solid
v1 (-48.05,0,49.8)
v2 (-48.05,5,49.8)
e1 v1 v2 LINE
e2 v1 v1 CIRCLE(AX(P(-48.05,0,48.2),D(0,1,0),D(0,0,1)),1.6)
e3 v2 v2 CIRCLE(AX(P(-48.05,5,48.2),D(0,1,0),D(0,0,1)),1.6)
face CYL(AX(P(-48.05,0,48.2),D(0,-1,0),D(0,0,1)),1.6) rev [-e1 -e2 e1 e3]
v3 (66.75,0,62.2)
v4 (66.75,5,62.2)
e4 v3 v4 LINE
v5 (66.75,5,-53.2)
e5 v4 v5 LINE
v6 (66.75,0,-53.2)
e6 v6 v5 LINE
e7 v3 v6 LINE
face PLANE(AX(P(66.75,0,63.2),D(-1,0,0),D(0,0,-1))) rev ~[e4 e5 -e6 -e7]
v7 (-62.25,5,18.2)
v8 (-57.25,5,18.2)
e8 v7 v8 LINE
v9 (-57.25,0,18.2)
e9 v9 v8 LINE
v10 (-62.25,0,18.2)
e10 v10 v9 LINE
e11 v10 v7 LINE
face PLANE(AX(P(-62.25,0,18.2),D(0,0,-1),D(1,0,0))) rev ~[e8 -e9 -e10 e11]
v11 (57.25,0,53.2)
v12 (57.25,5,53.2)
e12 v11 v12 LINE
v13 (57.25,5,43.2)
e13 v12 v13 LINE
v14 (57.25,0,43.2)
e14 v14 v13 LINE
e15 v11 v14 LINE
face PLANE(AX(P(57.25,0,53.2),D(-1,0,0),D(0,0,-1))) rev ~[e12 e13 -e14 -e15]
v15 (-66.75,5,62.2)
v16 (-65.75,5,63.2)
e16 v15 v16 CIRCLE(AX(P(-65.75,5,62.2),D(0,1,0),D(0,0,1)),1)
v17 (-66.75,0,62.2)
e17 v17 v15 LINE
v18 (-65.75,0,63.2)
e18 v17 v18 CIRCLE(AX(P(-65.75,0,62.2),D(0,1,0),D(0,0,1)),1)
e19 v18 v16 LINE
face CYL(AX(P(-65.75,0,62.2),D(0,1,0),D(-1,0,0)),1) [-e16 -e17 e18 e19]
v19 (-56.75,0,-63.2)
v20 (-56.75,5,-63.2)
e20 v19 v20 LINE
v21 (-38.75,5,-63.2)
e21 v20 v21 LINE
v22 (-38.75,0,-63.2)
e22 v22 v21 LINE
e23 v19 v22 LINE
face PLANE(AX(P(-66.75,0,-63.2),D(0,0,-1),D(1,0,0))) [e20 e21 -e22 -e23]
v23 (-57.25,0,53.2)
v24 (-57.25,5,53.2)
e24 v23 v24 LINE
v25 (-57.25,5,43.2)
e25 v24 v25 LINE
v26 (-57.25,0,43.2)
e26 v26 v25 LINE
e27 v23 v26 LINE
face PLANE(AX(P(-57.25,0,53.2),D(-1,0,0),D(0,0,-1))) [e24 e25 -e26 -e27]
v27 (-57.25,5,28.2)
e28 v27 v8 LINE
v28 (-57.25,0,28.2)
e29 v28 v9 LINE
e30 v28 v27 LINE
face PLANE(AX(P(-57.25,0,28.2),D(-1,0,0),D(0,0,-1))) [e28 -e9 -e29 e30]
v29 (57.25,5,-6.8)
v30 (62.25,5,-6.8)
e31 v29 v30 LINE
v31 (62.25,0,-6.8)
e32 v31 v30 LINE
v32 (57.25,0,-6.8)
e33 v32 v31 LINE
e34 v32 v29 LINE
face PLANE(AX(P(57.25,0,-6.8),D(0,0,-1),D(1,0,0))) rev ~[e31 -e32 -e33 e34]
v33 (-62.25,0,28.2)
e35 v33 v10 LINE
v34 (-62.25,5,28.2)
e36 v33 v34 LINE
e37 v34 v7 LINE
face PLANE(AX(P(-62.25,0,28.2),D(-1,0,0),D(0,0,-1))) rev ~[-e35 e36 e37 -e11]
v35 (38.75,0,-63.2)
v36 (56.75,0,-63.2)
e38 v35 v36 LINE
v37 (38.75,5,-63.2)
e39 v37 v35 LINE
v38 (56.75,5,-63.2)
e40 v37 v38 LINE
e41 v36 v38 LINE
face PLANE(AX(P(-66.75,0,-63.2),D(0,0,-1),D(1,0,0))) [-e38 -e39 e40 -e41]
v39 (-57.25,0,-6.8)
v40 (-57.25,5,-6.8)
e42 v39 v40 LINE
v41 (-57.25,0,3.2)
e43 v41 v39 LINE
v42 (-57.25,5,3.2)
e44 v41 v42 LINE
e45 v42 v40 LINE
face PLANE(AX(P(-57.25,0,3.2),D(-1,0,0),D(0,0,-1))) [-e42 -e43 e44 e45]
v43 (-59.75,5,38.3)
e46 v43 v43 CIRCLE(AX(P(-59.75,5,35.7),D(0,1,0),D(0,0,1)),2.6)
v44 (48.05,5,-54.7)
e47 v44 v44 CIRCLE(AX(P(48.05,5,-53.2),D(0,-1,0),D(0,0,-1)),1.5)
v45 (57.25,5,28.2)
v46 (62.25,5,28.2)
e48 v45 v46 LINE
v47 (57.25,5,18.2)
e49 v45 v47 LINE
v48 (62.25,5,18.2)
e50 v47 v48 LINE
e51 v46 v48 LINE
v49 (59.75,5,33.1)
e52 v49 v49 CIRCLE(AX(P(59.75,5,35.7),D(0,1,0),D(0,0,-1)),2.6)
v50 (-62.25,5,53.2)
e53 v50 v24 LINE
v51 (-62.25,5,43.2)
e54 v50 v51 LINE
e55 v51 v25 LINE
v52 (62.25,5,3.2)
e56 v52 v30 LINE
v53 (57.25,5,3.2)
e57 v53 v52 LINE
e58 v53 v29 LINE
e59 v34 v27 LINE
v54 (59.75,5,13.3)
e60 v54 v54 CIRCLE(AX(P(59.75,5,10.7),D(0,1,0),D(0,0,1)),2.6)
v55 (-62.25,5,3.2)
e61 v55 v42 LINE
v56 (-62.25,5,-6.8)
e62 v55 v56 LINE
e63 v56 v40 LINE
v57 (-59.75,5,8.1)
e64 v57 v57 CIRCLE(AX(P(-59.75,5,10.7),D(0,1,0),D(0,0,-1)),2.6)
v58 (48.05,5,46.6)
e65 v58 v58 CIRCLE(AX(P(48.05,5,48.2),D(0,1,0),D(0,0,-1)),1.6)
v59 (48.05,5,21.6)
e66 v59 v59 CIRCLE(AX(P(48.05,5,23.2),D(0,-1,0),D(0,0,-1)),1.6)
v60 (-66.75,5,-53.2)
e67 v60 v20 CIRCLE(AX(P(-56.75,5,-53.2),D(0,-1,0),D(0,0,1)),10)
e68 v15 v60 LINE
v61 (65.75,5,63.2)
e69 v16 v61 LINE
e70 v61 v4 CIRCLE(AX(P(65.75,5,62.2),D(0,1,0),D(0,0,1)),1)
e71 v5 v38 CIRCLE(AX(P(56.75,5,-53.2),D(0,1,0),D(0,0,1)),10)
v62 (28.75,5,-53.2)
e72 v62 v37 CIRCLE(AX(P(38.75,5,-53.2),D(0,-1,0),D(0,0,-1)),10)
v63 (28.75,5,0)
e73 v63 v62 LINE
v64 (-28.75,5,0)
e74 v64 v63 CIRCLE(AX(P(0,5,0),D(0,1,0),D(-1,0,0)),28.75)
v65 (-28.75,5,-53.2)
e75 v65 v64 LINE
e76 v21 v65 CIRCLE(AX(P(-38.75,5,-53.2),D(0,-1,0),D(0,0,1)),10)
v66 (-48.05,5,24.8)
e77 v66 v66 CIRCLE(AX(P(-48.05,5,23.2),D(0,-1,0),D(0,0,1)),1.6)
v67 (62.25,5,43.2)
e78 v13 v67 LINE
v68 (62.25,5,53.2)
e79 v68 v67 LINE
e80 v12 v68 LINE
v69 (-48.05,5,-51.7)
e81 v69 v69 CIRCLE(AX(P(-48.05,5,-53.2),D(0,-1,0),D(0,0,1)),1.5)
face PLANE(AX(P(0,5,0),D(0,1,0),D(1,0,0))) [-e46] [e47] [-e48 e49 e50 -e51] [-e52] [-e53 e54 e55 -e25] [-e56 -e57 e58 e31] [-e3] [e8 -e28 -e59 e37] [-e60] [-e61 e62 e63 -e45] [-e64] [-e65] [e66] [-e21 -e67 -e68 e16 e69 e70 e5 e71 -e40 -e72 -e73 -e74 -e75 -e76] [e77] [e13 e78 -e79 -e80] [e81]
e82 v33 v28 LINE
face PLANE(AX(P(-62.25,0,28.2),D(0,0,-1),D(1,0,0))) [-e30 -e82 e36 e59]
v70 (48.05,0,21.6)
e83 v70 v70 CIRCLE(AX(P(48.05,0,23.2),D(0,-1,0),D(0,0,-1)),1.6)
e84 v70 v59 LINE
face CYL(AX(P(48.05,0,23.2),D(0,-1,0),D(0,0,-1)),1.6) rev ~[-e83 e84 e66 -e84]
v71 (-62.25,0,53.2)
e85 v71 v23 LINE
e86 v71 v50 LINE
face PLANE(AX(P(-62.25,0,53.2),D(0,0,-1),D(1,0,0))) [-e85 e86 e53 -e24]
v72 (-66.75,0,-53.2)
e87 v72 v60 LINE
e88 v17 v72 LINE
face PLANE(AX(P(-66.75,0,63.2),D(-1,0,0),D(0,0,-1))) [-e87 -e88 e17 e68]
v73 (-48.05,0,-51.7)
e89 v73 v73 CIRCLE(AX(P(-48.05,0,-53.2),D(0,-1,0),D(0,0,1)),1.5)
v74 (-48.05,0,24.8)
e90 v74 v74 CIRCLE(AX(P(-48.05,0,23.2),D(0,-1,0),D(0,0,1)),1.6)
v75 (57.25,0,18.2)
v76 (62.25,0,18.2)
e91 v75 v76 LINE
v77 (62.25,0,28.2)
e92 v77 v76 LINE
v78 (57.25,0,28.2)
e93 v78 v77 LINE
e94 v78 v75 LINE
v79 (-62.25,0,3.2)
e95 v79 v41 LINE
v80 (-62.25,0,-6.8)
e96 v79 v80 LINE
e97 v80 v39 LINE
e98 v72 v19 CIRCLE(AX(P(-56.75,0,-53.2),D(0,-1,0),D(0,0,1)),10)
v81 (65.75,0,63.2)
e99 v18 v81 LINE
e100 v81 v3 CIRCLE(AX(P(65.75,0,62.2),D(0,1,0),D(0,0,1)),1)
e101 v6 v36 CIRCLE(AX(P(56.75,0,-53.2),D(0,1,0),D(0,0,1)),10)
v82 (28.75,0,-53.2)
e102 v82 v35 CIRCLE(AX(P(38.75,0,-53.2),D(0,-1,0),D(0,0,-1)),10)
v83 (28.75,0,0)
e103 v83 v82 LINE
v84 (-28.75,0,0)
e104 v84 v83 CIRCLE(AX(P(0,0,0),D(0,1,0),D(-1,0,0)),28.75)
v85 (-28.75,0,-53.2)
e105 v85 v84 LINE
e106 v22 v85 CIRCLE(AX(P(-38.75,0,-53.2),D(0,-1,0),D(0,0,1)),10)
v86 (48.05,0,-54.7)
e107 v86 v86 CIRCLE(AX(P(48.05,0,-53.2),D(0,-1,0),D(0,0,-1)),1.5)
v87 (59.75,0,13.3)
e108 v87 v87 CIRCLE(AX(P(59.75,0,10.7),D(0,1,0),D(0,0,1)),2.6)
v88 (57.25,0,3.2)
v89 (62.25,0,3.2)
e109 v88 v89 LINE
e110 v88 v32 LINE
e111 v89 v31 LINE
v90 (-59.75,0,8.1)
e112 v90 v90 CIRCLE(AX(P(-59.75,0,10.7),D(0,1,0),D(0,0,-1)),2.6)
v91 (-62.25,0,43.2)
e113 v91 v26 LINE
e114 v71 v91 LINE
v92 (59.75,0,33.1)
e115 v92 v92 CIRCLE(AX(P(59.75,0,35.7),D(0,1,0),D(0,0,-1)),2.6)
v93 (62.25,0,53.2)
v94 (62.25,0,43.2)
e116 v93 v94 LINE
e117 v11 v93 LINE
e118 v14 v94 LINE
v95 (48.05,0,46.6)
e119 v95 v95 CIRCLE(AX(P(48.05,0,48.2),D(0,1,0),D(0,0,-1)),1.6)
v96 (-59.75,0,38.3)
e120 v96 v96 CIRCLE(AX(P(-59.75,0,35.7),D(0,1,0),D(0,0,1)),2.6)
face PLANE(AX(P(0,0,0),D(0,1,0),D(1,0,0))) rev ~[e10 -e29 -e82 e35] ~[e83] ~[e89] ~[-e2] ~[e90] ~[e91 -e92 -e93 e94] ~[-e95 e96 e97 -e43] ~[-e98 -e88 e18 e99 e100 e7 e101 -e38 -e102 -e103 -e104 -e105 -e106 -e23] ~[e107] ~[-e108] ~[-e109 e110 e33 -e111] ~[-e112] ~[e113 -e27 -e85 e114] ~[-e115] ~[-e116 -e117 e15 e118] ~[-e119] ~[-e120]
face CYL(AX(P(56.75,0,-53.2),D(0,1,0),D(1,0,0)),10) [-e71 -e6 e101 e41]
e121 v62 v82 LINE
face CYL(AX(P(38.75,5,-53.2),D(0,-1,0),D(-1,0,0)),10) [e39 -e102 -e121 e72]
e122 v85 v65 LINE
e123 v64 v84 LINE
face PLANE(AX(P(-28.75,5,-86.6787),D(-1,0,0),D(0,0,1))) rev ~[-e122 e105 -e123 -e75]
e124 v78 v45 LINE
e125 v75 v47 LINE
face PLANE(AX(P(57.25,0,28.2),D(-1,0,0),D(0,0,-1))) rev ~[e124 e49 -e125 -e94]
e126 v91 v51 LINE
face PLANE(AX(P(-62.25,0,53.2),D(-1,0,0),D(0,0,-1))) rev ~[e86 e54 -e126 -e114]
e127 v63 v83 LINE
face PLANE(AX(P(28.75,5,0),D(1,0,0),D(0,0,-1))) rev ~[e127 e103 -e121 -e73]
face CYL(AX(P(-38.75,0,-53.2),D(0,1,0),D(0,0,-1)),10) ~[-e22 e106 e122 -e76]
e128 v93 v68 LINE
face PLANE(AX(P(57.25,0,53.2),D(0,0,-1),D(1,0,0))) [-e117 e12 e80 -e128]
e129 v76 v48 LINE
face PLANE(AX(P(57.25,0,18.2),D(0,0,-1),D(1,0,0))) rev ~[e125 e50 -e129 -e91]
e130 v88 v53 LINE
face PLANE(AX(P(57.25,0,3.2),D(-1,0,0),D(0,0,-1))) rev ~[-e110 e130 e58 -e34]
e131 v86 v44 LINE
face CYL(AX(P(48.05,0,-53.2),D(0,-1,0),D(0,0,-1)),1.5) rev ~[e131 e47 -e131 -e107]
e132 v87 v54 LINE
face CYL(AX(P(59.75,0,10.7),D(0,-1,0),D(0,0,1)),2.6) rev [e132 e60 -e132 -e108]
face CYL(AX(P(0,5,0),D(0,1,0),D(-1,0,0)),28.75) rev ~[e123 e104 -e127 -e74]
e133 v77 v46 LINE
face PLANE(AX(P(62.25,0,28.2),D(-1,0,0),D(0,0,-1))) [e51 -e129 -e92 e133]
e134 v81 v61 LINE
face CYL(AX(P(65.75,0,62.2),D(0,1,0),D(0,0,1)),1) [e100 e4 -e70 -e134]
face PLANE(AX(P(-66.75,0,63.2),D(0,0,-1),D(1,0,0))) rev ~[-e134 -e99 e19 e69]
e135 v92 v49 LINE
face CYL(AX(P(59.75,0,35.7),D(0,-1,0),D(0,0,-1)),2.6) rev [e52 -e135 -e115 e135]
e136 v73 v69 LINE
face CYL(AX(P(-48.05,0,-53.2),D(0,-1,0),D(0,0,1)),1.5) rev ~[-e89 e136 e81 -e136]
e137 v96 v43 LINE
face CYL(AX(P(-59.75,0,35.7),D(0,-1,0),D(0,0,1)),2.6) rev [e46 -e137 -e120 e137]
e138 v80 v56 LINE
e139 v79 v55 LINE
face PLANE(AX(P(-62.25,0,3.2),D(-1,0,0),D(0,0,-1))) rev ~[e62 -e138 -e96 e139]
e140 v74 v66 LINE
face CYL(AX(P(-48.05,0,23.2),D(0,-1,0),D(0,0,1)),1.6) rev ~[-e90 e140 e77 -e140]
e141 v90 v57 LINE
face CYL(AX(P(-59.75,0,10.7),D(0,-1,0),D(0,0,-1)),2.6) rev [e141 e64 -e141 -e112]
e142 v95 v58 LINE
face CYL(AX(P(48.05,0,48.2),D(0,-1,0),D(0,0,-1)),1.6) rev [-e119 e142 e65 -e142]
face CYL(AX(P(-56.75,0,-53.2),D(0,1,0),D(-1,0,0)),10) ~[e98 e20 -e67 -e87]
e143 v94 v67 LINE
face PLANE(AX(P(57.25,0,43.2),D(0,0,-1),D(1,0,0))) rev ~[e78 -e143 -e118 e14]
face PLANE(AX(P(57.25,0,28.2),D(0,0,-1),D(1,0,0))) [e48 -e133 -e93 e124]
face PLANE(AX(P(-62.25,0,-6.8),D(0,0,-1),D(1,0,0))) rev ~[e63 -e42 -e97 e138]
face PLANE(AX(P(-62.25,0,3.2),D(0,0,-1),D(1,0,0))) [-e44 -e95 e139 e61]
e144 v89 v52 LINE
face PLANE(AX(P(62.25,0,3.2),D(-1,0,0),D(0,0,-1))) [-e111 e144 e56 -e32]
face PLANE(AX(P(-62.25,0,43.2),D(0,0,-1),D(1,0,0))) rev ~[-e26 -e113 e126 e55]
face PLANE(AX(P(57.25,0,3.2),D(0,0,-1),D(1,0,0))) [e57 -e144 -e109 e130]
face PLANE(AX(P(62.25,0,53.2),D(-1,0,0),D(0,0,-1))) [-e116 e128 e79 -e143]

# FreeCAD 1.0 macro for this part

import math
import FreeCAD as App
import Part
import Sketcher

V = App.Vector


def edges_at(feature, points):
    """Names of the edges that pass closest to the given points."""
    edges = feature.Shape.Edges
    near = lambda p: min(range(len(edges)), key=lambda i: edges[i].distToShape(Part.Vertex(*p))[0])
    return sorted({f"Edge{near(p) + 1}" for p in points})


def add_polygon(sketch, points):
    """Adds a closed chain of lines whose ends are joined by coincident constraints."""
    first, n = sketch.GeometryCount, len(points)
    for a, b in zip(points, points[1:] + points[:1]):
        sketch.addGeometry(Part.LineSegment(App.Vector(*a, 0), App.Vector(*b, 0)), False)
    for i in range(n):
        sketch.addConstraint(Sketcher.Constraint("Coincident", first + i, 2, first + (i + 1) % n, 1))

doc = App.newDocument("Part")
body = doc.addObject("PartDesign::Body", "Body")

sketch1 = body.newObject("Sketcher::SketchObject", "Sketch")
sketch1.AttachmentSupport = (doc.getObject("XZ_Plane"), [""])
sketch1.MapMode = "FlatFace"
add_polygon(sketch1, [(-66.75, -63.2), (-66.75, 63.2), (66.75, 63.2), (66.75, -63.2)])
add_polygon(sketch1, [(-57.25, 53.2), (-62.25, 53.2), (-62.25, 43.2), (-57.25, 43.2)])
sketch1.addGeometry(Part.Circle(V(-48.05, 48.2, 0), V(0, 0, 1), 1.6), False)
sketch1.addGeometry(Part.Circle(V(-59.75, 35.7, 0), V(0, 0, 1), 2.6), False)
sketch1.addGeometry(Part.Circle(V(48.05, 48.2, 0), V(0, 0, 1), 1.6), False)
add_polygon(sketch1, [(62.25, 53.2), (57.25, 53.2), (57.25, 43.2), (62.25, 43.2)])
sketch1.addGeometry(Part.Circle(V(59.75, 35.7, 0), V(0, 0, 1), 2.6), False)
add_polygon(sketch1, [(-57.25, 28.2), (-62.25, 28.2), (-62.25, 18.2), (-57.25, 18.2)])
sketch1.addGeometry(Part.Circle(V(-59.75, 10.7, 0), V(0, 0, 1), 2.6), False)
add_polygon(sketch1, [(-57.25, 3.2), (-62.25, 3.2), (-62.25, -6.8), (-57.25, -6.8)])
add_polygon(sketch1, [(62.25, 28.2), (57.25, 28.2), (57.25, 18.2), (62.25, 18.2)])
sketch1.addGeometry(Part.Circle(V(59.75, 10.7, 0), V(0, 0, 1), 2.6), False)
add_polygon(sketch1, [(62.25, 3.2), (57.25, 3.2), (57.25, -6.8), (62.25, -6.8)])
sketch1.addConstraint([
    Sketcher.Constraint("Vertical", 0),
    Sketcher.Constraint("Horizontal", 1),
    Sketcher.Constraint("Vertical", 2),
    Sketcher.Constraint("Horizontal", 3),
    Sketcher.Constraint("Horizontal", 4),
    Sketcher.Constraint("Vertical", 5),
    Sketcher.Constraint("Horizontal", 6),
    Sketcher.Constraint("Vertical", 7),
    Sketcher.Constraint("Horizontal", 11),
    Sketcher.Constraint("Vertical", 12),
    Sketcher.Constraint("Horizontal", 13),
    Sketcher.Constraint("Vertical", 14),
    Sketcher.Constraint("Horizontal", 16),
    Sketcher.Constraint("Vertical", 17),
    Sketcher.Constraint("Horizontal", 18),
    Sketcher.Constraint("Vertical", 19),
    Sketcher.Constraint("Horizontal", 21),
    Sketcher.Constraint("Vertical", 22),
    Sketcher.Constraint("Horizontal", 23),
    Sketcher.Constraint("Vertical", 24),
    Sketcher.Constraint("Horizontal", 25),
    Sketcher.Constraint("Vertical", 26),
    Sketcher.Constraint("Horizontal", 27),
    Sketcher.Constraint("Vertical", 28),
    Sketcher.Constraint("Horizontal", 30),
    Sketcher.Constraint("Vertical", 31),
    Sketcher.Constraint("Horizontal", 32),
    Sketcher.Constraint("Vertical", 33),
    Sketcher.Constraint("Equal", 8, 10),
    Sketcher.Constraint("Equal", 9, 15),
    Sketcher.Constraint("Equal", 15, 20),
    Sketcher.Constraint("Equal", 20, 29),
    Sketcher.Constraint("Symmetric", 0, 2, 2, 2, -1, 1),
    Sketcher.Constraint("Symmetric", 8, 3, 10, 3, -2),
    Sketcher.Constraint("Symmetric", 9, 3, 15, 3, -2),
    Sketcher.Constraint("Symmetric", 20, 3, 29, 3, -2),
    Sketcher.Constraint("Symmetric", 7, 2, 11, 2, -2),
    Sketcher.Constraint("Symmetric", 5, 2, 13, 2, -2),
    Sketcher.Constraint("Symmetric", 19, 2, 25, 2, -2),
    Sketcher.Constraint("Symmetric", 17, 2, 27, 2, -2),
    Sketcher.Constraint("Symmetric", 24, 2, 30, 2, -2),
    Sketcher.Constraint("Symmetric", 22, 2, 32, 2, -2),
    Sketcher.Constraint("Vertical", 9, 3, 20, 3),
    Sketcher.Constraint("Vertical", 5, 2, 16, 2),
    Sketcher.Constraint("Vertical", 7, 2, 18, 2),
    Sketcher.Constraint("Vertical", 17, 2, 21, 2),
    Sketcher.Constraint("Vertical", 19, 2, 23, 2),
    Sketcher.Constraint("Equal", 14, 17),
    Sketcher.Constraint("Equal", 19, 22),
    Sketcher.Constraint("Diameter", 8, 3.2),
    Sketcher.Constraint("Diameter", 9, 5.2),
    Sketcher.Constraint("DistanceX", 4, 2, 4, 1, 5.0),
    Sketcher.Constraint("DistanceY", 5, 2, 5, 1, 10.0),
    Sketcher.Constraint("DistanceX", 1, 1, 1, 2, 133.5),
    Sketcher.Constraint("DistanceY", 0, 1, 0, 2, 126.4),
    Sketcher.Constraint("DistanceY", 20, 3, 9, 3, 25.0),
    Sketcher.Constraint("DistanceY", 8, 3, 0, 2, 15.0),
    Sketcher.Constraint("DistanceX", 0, 2, 9, 3, 7.0),
    Sketcher.Constraint("DistanceY", 4, 2, 0, 2, 10.0),
    Sketcher.Constraint("DistanceY", 16, 2, 5, 2, 15.0),
    Sketcher.Constraint("DistanceY", 21, 2, 17, 2, 15.0),
    Sketcher.Constraint("DistanceY", -1, 1, 9, 3, 35.7),
    Sketcher.Constraint("DistanceX", 9, 3, 8, 3, 11.7),
    Sketcher.Constraint("DistanceX", 0, 2, 4, 2, 4.5),
])
pad1 = body.newObject("PartDesign::Pad", "Pad")
pad1.Profile = sketch1
pad1.Length = 5
pad1.Reversed = True

sketch2 = body.newObject("Sketcher::SketchObject", "Sketch001")
sketch2.AttachmentSupport = (doc.getObject("XZ_Plane"), [""])
sketch2.MapMode = "FlatFace"
sketch2.AttachmentOffset = App.Placement(V(0, 0, -5), App.Rotation())
sketch2.addGeometry([
    Part.LineSegment(V(-28.75, -86.6787, 0), V(-28.75, 0, 0)),
    Part.ArcOfCircle(Part.Circle(V(0, 0, 0), V(0, 0, 1), 28.75), math.radians(0), math.radians(180)),
    Part.LineSegment(V(28.75, 0, 0), V(28.75, -86.6787, 0)),
    Part.LineSegment(V(28.75, -86.6787, 0), V(-28.75, -86.6787, 0)),
], False)
sketch2.addConstraint([
    Sketcher.Constraint("Tangent", 0, 2, 1, 2),
    Sketcher.Constraint("Tangent", 1, 1, 2, 1),
    Sketcher.Constraint("Coincident", 2, 2, 3, 1),
    Sketcher.Constraint("Coincident", 3, 2, 0, 1),
    Sketcher.Constraint("Vertical", 0),
    Sketcher.Constraint("Vertical", 2),
    Sketcher.Constraint("Horizontal", 3),
    Sketcher.Constraint("Coincident", 1, 3, -1, 1),
    Sketcher.Constraint("Radius", 1, 28.75),
    Sketcher.Constraint("DistanceY", 0, 1, 0, 2, 86.6787),
])
pocket1 = body.newObject("PartDesign::Pocket", "Pocket")
pocket1.Profile = sketch2
pocket1.Length = 10
pocket1.Reversed = True
doc.recompute()

fillet = body.newObject("PartDesign::Fillet", "Fillet")
fillet.Base = (pocket1, edges_at(pocket1, [
    (-28.75, 2.5, -63.2),
    (28.75, 2.5, -63.2),
    (-66.75, 2.5, -63.2),
    (66.75, 2.5, -63.2),
]))
fillet.Radius = 10

sketch3 = body.newObject("Sketcher::SketchObject", "Sketch002")
sketch3.AttachmentSupport = (doc.getObject("XZ_Plane"), [""])
sketch3.MapMode = "FlatFace"
sketch3.addGeometry(Part.Circle(V(48.05, 23.2, 0), V(0, 0, 1), 1.6), False)
sketch3.addConstraint([
    Sketcher.Constraint("Diameter", 0, 3.2),
    Sketcher.Constraint("DistanceY", -1, 1, 0, 3, 23.2),
    Sketcher.Constraint("DistanceX", -1, 1, 0, 3, 48.05),
])
pocket2 = body.newObject("PartDesign::Pocket", "Pocket001")
pocket2.Profile = sketch3
pocket2.Type = "UpToFirst"

sketch4 = body.newObject("Sketcher::SketchObject", "Sketch003")
sketch4.AttachmentSupport = (doc.getObject("XZ_Plane"), [""])
sketch4.MapMode = "FlatFace"
sketch4.addGeometry(Part.Circle(V(48.05, -53.2, 0), V(0, 0, 1), 1.5), False)
sketch4.addConstraint([
    Sketcher.Constraint("Diameter", 0, 3.0),
    Sketcher.Constraint("DistanceY", 0, 3, -1, 1, 53.2),
    Sketcher.Constraint("DistanceX", -1, 1, 0, 3, 48.05),
])
pocket3 = body.newObject("PartDesign::Pocket", "Pocket002")
pocket3.Profile = sketch4
pocket3.Type = "UpToFirst"

sketch5 = body.newObject("Sketcher::SketchObject", "Sketch004")
sketch5.AttachmentSupport = (doc.getObject("XZ_Plane"), [""])
sketch5.MapMode = "FlatFace"
sketch5.addGeometry(Part.Circle(V(-48.05, -53.2, 0), V(0, 0, 1), 1.5), False)
sketch5.addConstraint([
    Sketcher.Constraint("Diameter", 0, 3.0),
    Sketcher.Constraint("DistanceY", 0, 3, -1, 1, 53.2),
    Sketcher.Constraint("DistanceX", 0, 3, -1, 1, 48.05),
])
pocket4 = body.newObject("PartDesign::Pocket", "Pocket003")
pocket4.Profile = sketch5
pocket4.Type = "UpToFirst"

sketch6 = body.newObject("Sketcher::SketchObject", "Sketch005")
sketch6.AttachmentSupport = (doc.getObject("XZ_Plane"), [""])
sketch6.MapMode = "FlatFace"
sketch6.addGeometry(Part.Circle(V(-48.05, 23.2, 0), V(0, 0, 1), 1.6), False)
sketch6.addConstraint([
    Sketcher.Constraint("Diameter", 0, 3.2),
    Sketcher.Constraint("DistanceY", -1, 1, 0, 3, 23.2),
    Sketcher.Constraint("DistanceX", 0, 3, -1, 1, 48.05),
])
pocket5 = body.newObject("PartDesign::Pocket", "Pocket004")
pocket5.Profile = sketch6
pocket5.Type = "UpToFirst"
doc.recompute()

fillet2 = body.newObject("PartDesign::Fillet", "Fillet001")
fillet2.Base = (pocket5, edges_at(pocket5, [(66.75, 2.5, 63.2), (-66.75, 2.5, 63.2)]))
fillet2.Radius = 1

doc.recompute()
